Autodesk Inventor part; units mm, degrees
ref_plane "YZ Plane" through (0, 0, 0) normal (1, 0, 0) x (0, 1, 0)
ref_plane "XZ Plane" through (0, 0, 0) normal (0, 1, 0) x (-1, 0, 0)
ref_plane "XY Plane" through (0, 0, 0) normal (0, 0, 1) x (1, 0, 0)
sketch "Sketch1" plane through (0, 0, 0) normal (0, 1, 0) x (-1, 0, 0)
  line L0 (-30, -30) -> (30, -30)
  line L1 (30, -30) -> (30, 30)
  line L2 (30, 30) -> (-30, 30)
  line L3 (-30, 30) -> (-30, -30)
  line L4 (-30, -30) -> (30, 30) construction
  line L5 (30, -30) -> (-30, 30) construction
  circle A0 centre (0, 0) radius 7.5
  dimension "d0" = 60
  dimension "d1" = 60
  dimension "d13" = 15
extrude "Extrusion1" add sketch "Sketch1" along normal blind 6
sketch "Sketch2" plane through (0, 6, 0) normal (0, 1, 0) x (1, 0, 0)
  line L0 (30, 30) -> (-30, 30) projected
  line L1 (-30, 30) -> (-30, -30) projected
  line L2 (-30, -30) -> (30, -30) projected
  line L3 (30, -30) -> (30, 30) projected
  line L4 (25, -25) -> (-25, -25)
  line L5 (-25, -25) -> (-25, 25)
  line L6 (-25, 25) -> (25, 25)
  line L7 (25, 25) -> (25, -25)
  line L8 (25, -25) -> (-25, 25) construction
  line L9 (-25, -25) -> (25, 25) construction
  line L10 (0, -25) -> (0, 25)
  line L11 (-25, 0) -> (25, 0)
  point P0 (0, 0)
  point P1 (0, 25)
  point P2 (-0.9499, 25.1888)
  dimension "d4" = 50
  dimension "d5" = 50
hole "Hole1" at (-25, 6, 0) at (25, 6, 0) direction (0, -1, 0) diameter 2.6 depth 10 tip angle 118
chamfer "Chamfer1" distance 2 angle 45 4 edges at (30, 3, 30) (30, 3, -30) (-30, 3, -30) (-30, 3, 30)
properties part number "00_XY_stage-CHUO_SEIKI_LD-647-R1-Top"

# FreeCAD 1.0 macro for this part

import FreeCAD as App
import Part
import Sketcher
Q = App.Units.Quantity


def edges_at(feature, points):
    """Names of the edges that pass closest to the given points."""
    edges = feature.Shape.Edges
    near = lambda p: min(range(len(edges)), key=lambda i: edges[i].distToShape(Part.Vertex(*p))[0])
    return sorted({f"Edge{near(p) + 1}" for p in points})

doc = App.newDocument("Part")
body = doc.addObject("PartDesign::Body", "Body")

# Sketch on XZ plane
sketch1 = body.newObject("Sketcher::SketchObject", "Sketch")
sketch1.AttachmentSupport = (doc.getObject("XZ_Plane"), [""])
sketch1.MapMode = "FlatFace"
sketch1.addGeometry(Part.LineSegment(App.Vector(30, 30, 0), App.Vector(30, -30, 0)), False)
sketch1.addGeometry(Part.LineSegment(App.Vector(30, -30, 0), App.Vector(-30, -30, 0)), False)
sketch1.addGeometry(Part.LineSegment(App.Vector(-30, -30, 0), App.Vector(-30, 30, 0)), False)
sketch1.addGeometry(Part.LineSegment(App.Vector(-30, 30, 0), App.Vector(30, 30, 0)), False)
sketch1.addGeometry(Part.Circle(App.Vector(0, 0, 0), App.Vector(0, 0, 1), 8), False)
sketch1.addConstraint(Sketcher.Constraint("Coincident", 0, 2, 1, 1))
sketch1.addConstraint(Sketcher.Constraint("Coincident", 1, 2, 2, 1))
sketch1.addConstraint(Sketcher.Constraint("Coincident", 2, 2, 3, 1))
sketch1.addConstraint(Sketcher.Constraint("Coincident", 3, 2, 0, 1))
sketch1.addConstraint(Sketcher.Constraint("Vertical", 0))
sketch1.addConstraint(Sketcher.Constraint("Horizontal", 1))
sketch1.addConstraint(Sketcher.Constraint("Vertical", 2))
sketch1.addConstraint(Sketcher.Constraint("Horizontal", 3))
sketch1.addConstraint(Sketcher.Constraint("Coincident", 4, 3, -1, 1))
sketch1.addConstraint(Sketcher.Constraint("Symmetric", 0, 2, 2, 2, -1, 1))
sketch1.addConstraint(Sketcher.Constraint("Equal", 3, 0))
sketch1.addConstraint(Sketcher.Constraint("Diameter", 4, Q("15 mm")))
sketch1.addConstraint(Sketcher.Constraint("DistanceX", 1, 2, 1, 1, Q("60 mm")))
pad1 = body.newObject("PartDesign::Pad", "Pad")
pad1.Profile = sketch1
pad1.Length = 6
pad1.Reversed = True

# Sketch on XZ plane
sketch2 = body.newObject("Sketcher::SketchObject", "Sketch001")
sketch2.AttachmentSupport = (doc.getObject("XZ_Plane"), [""])
sketch2.MapMode = "FlatFace"
sketch2.AttachmentOffset = App.Placement(App.Vector(0, 0, -6), App.Rotation())
sketch2.addGeometry(Part.Circle(App.Vector(-25, 0, 0), App.Vector(0, 0, 1), 1.3), False)
sketch2.addGeometry(Part.Circle(App.Vector(25, 0, 0), App.Vector(0, 0, 1), 1.3), False)
sketch2.addConstraint(Sketcher.Constraint("Equal", 0, 1))
sketch2.addConstraint(Sketcher.Constraint("Symmetric", 0, 3, 1, 3, -1, 1))
sketch2.addConstraint(Sketcher.Constraint("PointOnObject", 0, 3, -1))
sketch2.addConstraint(Sketcher.Constraint("Diameter", 0, Q("2.6 mm")))
sketch2.addConstraint(Sketcher.Constraint("DistanceX", 0, 3, -1, 1, Q("25 mm")))
doc.recompute()
hole = body.newObject("PartDesign::Hole", "Hole")
hole.Profile = sketch2
hole.ThreadType = "None"
hole.Diameter = 2.6
hole.DepthType = "Dimension"
hole.Depth = 10
hole.DrillPoint = "Angled"
hole.DrillPointAngle = 118
hole.Reversed = True
doc.recompute()

chamfer = body.newObject("PartDesign::Chamfer", "Chamfer")
chamfer.Base = (hole, edges_at(hole, [
    (30, 3, 30),
    (30, 3, -30),
    (-30, 3, -30),
    (-30, 3, 30),
]))
chamfer.Size = 2

doc.recompute()
